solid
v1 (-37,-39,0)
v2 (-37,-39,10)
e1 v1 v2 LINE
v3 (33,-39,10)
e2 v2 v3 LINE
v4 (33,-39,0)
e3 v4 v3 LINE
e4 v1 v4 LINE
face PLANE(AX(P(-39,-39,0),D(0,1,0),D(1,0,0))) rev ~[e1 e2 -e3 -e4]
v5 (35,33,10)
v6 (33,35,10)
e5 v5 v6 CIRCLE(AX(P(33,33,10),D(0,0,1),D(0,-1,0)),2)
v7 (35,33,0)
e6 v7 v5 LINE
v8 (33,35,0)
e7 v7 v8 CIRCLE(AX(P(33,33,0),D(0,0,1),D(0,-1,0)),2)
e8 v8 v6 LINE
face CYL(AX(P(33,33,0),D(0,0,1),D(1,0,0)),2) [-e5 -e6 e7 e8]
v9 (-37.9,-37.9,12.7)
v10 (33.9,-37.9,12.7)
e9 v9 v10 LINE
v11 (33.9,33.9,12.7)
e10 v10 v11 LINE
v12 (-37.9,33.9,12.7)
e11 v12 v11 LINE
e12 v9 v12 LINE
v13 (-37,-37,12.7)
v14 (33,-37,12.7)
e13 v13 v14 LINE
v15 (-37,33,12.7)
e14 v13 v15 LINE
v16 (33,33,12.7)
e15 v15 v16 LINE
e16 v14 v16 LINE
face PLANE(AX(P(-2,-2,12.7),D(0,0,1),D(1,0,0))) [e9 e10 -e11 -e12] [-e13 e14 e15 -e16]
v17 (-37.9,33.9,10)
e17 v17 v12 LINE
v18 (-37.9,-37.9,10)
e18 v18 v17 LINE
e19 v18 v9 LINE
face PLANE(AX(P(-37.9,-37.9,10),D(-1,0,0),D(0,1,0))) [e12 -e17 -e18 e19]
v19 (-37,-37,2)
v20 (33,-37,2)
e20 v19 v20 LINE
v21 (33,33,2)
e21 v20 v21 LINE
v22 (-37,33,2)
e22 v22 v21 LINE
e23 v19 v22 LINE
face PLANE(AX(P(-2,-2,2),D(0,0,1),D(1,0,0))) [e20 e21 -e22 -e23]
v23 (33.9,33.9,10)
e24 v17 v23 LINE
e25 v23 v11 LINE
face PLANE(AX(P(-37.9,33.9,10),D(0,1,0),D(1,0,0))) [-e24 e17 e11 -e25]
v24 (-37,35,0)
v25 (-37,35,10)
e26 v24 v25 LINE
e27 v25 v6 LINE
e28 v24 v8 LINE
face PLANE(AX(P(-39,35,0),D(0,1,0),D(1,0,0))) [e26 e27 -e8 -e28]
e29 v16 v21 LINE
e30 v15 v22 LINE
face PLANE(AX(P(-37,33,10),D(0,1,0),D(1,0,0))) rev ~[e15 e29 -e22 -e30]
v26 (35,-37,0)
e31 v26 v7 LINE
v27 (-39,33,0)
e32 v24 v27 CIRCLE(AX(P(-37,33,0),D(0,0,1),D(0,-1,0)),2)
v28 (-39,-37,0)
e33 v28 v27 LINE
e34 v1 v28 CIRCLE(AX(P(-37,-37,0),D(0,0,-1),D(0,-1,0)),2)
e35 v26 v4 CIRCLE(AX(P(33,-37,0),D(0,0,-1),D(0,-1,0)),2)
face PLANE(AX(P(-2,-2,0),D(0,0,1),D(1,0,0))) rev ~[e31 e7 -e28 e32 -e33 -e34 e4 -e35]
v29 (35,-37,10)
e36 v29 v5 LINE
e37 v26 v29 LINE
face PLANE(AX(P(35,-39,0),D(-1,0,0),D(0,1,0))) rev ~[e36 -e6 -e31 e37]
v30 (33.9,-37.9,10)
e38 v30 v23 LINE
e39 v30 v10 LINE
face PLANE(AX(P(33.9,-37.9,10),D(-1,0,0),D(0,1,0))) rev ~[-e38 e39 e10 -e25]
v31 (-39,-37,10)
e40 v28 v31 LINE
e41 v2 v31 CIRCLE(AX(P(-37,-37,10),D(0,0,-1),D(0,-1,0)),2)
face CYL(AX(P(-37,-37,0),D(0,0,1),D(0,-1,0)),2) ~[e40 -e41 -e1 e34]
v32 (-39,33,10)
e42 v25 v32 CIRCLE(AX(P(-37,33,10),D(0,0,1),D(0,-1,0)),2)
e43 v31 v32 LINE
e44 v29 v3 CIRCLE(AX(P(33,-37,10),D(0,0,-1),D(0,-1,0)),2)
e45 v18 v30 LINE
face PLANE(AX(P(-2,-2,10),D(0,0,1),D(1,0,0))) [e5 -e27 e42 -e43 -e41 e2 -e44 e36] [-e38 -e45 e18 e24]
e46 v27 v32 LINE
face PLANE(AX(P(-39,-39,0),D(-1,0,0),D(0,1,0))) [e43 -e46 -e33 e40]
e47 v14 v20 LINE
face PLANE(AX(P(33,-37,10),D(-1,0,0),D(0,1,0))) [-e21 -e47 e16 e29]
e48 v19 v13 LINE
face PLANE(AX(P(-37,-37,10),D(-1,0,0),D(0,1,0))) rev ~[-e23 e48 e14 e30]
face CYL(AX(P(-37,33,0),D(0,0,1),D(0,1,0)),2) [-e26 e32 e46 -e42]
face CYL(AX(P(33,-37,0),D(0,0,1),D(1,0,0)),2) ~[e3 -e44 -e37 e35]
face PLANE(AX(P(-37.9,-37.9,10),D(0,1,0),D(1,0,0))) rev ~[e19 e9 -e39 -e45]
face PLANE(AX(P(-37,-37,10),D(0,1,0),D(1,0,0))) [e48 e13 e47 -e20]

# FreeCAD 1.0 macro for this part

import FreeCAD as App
import Part
import Sketcher
Q = App.Units.Quantity


def edges_at(feature, points):
    """Names of the edges that pass closest to the given points."""
    edges = feature.Shape.Edges
    near = lambda p: min(range(len(edges)), key=lambda i: edges[i].distToShape(Part.Vertex(*p))[0])
    return sorted({f"Edge{near(p) + 1}" for p in points})

doc = App.newDocument("Part")
params = doc.addObject("Spreadsheet::Sheet", "Params")
for row, (alias, value) in enumerate([
    ("sketch1_width", "74 mm"),
    ("sketch1_width2", "70 mm"),
    ("pad1_length", "10 mm"),
    ("sketch2_width", "70 mm"),
    ("pad2_length", "2 mm"),
    ("sketch3_width", "70 mm"),
    ("sketch3_width2", "71.8 mm"),
    ("pad3_length", "2.7 mm"),
    ("fillet_radius", "2 mm"),
], start=1):
    params.set(f"A{row}", alias)
    params.set(f"B{row}", "=" + value)
    params.setAlias(f"B{row}", alias)

body = doc.addObject("PartDesign::Body", "Body")

# Sketch on XY plane
sketch1 = body.newObject("Sketcher::SketchObject", "Sketch")
sketch1.AttachmentSupport = (doc.getObject("XY_Plane"), [""])
sketch1.MapMode = "FlatFace"
sketch1.addGeometry([
    Part.LineSegment(App.Vector(-39, 35, 0), App.Vector(-39, -39, 0)),  # 0
    Part.LineSegment(App.Vector(-39, -39, 0), App.Vector(35, -39, 0)),  # 1
    Part.LineSegment(App.Vector(35, -39, 0), App.Vector(35, 35, 0)),  # 2
    Part.LineSegment(App.Vector(35, 35, 0), App.Vector(-39, 35, 0)),  # 3
    Part.LineSegment(App.Vector(33, -37, 0), App.Vector(-37, -37, 0)),  # 4
    Part.LineSegment(App.Vector(-37, -37, 0), App.Vector(-37, 33, 0)),  # 5
    Part.LineSegment(App.Vector(-37, 33, 0), App.Vector(33, 33, 0)),  # 6
    Part.LineSegment(App.Vector(33, 33, 0), App.Vector(33, -37, 0)),  # 7
], False)
sketch1.addConstraint([
    Sketcher.Constraint("Coincident", 0, 2, 1, 1),
    Sketcher.Constraint("Coincident", 1, 2, 2, 1),
    Sketcher.Constraint("Coincident", 2, 2, 3, 1),
    Sketcher.Constraint("Coincident", 3, 2, 0, 1),
    Sketcher.Constraint("Coincident", 4, 2, 5, 1),
    Sketcher.Constraint("Coincident", 5, 2, 6, 1),
    Sketcher.Constraint("Coincident", 6, 2, 7, 1),
    Sketcher.Constraint("Coincident", 7, 2, 4, 1),
    Sketcher.Constraint("Vertical", 0),
    Sketcher.Constraint("Horizontal", 1),
    Sketcher.Constraint("Vertical", 2),
    Sketcher.Constraint("Horizontal", 3),
    Sketcher.Constraint("Horizontal", 4),
    Sketcher.Constraint("Vertical", 5),
    Sketcher.Constraint("Horizontal", 6),
    Sketcher.Constraint("Vertical", 7),
    Sketcher.Constraint("Equal", 3, 0),
    Sketcher.Constraint("Equal", 6, 5),
    Sketcher.Constraint("DistanceX", 1, 1, 1, 2, Q("74 mm")),
    Sketcher.Constraint("DistanceX", 4, 2, 4, 1, Q("70 mm")),
    Sketcher.Constraint("DistanceX", 0, 2, -1, 1, Q("39 mm")),
    Sketcher.Constraint("DistanceY", 0, 2, -1, 1, Q("39 mm")),
    Sketcher.Constraint("DistanceX", 4, 2, -1, 1, Q("37 mm")),
    Sketcher.Constraint("DistanceY", 4, 2, -1, 1, Q("37 mm")),
])
sketch1.setExpression("Constraints[18]", "Params.sketch1_width")
sketch1.setExpression("Constraints[19]", "Params.sketch1_width2")
pad1 = body.newObject("PartDesign::Pad", "Pad")
pad1.Profile = sketch1
pad1.setExpression("Length", "Params.pad1_length")

# Sketch on XY plane
sketch2 = body.newObject("Sketcher::SketchObject", "Sketch001")
sketch2.AttachmentSupport = (doc.getObject("XY_Plane"), [""])
sketch2.MapMode = "FlatFace"
sketch2.addGeometry([
    Part.LineSegment(App.Vector(-37, 33, 0), App.Vector(-37, -37, 0)),
    Part.LineSegment(App.Vector(-37, -37, 0), App.Vector(33, -37, 0)),
    Part.LineSegment(App.Vector(33, -37, 0), App.Vector(33, 33, 0)),
    Part.LineSegment(App.Vector(33, 33, 0), App.Vector(-37, 33, 0)),
], False)
sketch2.addConstraint([
    Sketcher.Constraint("Coincident", 0, 2, 1, 1),
    Sketcher.Constraint("Coincident", 1, 2, 2, 1),
    Sketcher.Constraint("Coincident", 2, 2, 3, 1),
    Sketcher.Constraint("Coincident", 3, 2, 0, 1),
    Sketcher.Constraint("Vertical", 0),
    Sketcher.Constraint("Horizontal", 1),
    Sketcher.Constraint("Vertical", 2),
    Sketcher.Constraint("Horizontal", 3),
    Sketcher.Constraint("Equal", 3, 0),
    Sketcher.Constraint("DistanceX", 1, 1, 1, 2, Q("70 mm")),
    Sketcher.Constraint("DistanceX", 0, 2, -1, 1, Q("37 mm")),
    Sketcher.Constraint("DistanceY", 0, 2, -1, 1, Q("37 mm")),
])
sketch2.setExpression("Constraints[9]", "Params.sketch2_width")
pad2 = body.newObject("PartDesign::Pad", "Pad001")
pad2.Profile = sketch2
pad2.setExpression("Length", "Params.pad2_length")

# Sketch on XY plane
sketch3 = body.newObject("Sketcher::SketchObject", "Sketch002")
sketch3.AttachmentSupport = (doc.getObject("XY_Plane"), [""])
sketch3.MapMode = "FlatFace"
sketch3.AttachmentOffset = App.Placement(App.Vector(0, 0, 10), App.Rotation())
sketch3.addGeometry([
    Part.LineSegment(App.Vector(-38, 34, 0), App.Vector(-38, -38, 0)),  # 0
    Part.LineSegment(App.Vector(-38, -38, 0), App.Vector(34, -38, 0)),  # 1
    Part.LineSegment(App.Vector(34, -38, 0), App.Vector(34, 34, 0)),  # 2
    Part.LineSegment(App.Vector(34, 34, 0), App.Vector(-38, 34, 0)),  # 3
    Part.LineSegment(App.Vector(33, -37, 0), App.Vector(-37, -37, 0)),  # 4
    Part.LineSegment(App.Vector(-37, -37, 0), App.Vector(-37, 33, 0)),  # 5
    Part.LineSegment(App.Vector(-37, 33, 0), App.Vector(33, 33, 0)),  # 6
    Part.LineSegment(App.Vector(33, 33, 0), App.Vector(33, -37, 0)),  # 7
], False)
sketch3.addConstraint([
    Sketcher.Constraint("Coincident", 0, 2, 1, 1),
    Sketcher.Constraint("Coincident", 1, 2, 2, 1),
    Sketcher.Constraint("Coincident", 2, 2, 3, 1),
    Sketcher.Constraint("Coincident", 3, 2, 0, 1),
    Sketcher.Constraint("Coincident", 4, 2, 5, 1),
    Sketcher.Constraint("Coincident", 5, 2, 6, 1),
    Sketcher.Constraint("Coincident", 6, 2, 7, 1),
    Sketcher.Constraint("Coincident", 7, 2, 4, 1),
    Sketcher.Constraint("Vertical", 0),
    Sketcher.Constraint("Horizontal", 1),
    Sketcher.Constraint("Vertical", 2),
    Sketcher.Constraint("Horizontal", 3),
    Sketcher.Constraint("Horizontal", 4),
    Sketcher.Constraint("Vertical", 5),
    Sketcher.Constraint("Horizontal", 6),
    Sketcher.Constraint("Vertical", 7),
    Sketcher.Constraint("Equal", 3, 0),
    Sketcher.Constraint("Equal", 6, 5),
    Sketcher.Constraint("DistanceX", 4, 2, 4, 1, Q("70 mm")),
    Sketcher.Constraint("DistanceX", 1, 1, 1, 2, Q("71.8 mm")),
    Sketcher.Constraint("DistanceX", 4, 2, -1, 1, Q("37 mm")),
    Sketcher.Constraint("DistanceY", 4, 2, -1, 1, Q("37 mm")),
    Sketcher.Constraint("DistanceX", 0, 2, -1, 1, Q("37.9 mm")),
    Sketcher.Constraint("DistanceY", 0, 2, -1, 1, Q("37.9 mm")),
])
sketch3.setExpression("Constraints[18]", "Params.sketch3_width")
sketch3.setExpression("Constraints[19]", "Params.sketch3_width2")
pad3 = body.newObject("PartDesign::Pad", "Pad002")
pad3.Profile = sketch3
pad3.setExpression("Length", "Params.pad3_length")
doc.recompute()

fillet = body.newObject("PartDesign::Fillet", "Fillet")
fillet.Base = (pad3, edges_at(pad3, [
    (-39, -39, 5),
    (35, -39, 5),
    (35, 35, 5),
    (-39, 35, 5),
]))
fillet.setExpression("Radius", "Params.fillet_radius")

doc.recompute()
